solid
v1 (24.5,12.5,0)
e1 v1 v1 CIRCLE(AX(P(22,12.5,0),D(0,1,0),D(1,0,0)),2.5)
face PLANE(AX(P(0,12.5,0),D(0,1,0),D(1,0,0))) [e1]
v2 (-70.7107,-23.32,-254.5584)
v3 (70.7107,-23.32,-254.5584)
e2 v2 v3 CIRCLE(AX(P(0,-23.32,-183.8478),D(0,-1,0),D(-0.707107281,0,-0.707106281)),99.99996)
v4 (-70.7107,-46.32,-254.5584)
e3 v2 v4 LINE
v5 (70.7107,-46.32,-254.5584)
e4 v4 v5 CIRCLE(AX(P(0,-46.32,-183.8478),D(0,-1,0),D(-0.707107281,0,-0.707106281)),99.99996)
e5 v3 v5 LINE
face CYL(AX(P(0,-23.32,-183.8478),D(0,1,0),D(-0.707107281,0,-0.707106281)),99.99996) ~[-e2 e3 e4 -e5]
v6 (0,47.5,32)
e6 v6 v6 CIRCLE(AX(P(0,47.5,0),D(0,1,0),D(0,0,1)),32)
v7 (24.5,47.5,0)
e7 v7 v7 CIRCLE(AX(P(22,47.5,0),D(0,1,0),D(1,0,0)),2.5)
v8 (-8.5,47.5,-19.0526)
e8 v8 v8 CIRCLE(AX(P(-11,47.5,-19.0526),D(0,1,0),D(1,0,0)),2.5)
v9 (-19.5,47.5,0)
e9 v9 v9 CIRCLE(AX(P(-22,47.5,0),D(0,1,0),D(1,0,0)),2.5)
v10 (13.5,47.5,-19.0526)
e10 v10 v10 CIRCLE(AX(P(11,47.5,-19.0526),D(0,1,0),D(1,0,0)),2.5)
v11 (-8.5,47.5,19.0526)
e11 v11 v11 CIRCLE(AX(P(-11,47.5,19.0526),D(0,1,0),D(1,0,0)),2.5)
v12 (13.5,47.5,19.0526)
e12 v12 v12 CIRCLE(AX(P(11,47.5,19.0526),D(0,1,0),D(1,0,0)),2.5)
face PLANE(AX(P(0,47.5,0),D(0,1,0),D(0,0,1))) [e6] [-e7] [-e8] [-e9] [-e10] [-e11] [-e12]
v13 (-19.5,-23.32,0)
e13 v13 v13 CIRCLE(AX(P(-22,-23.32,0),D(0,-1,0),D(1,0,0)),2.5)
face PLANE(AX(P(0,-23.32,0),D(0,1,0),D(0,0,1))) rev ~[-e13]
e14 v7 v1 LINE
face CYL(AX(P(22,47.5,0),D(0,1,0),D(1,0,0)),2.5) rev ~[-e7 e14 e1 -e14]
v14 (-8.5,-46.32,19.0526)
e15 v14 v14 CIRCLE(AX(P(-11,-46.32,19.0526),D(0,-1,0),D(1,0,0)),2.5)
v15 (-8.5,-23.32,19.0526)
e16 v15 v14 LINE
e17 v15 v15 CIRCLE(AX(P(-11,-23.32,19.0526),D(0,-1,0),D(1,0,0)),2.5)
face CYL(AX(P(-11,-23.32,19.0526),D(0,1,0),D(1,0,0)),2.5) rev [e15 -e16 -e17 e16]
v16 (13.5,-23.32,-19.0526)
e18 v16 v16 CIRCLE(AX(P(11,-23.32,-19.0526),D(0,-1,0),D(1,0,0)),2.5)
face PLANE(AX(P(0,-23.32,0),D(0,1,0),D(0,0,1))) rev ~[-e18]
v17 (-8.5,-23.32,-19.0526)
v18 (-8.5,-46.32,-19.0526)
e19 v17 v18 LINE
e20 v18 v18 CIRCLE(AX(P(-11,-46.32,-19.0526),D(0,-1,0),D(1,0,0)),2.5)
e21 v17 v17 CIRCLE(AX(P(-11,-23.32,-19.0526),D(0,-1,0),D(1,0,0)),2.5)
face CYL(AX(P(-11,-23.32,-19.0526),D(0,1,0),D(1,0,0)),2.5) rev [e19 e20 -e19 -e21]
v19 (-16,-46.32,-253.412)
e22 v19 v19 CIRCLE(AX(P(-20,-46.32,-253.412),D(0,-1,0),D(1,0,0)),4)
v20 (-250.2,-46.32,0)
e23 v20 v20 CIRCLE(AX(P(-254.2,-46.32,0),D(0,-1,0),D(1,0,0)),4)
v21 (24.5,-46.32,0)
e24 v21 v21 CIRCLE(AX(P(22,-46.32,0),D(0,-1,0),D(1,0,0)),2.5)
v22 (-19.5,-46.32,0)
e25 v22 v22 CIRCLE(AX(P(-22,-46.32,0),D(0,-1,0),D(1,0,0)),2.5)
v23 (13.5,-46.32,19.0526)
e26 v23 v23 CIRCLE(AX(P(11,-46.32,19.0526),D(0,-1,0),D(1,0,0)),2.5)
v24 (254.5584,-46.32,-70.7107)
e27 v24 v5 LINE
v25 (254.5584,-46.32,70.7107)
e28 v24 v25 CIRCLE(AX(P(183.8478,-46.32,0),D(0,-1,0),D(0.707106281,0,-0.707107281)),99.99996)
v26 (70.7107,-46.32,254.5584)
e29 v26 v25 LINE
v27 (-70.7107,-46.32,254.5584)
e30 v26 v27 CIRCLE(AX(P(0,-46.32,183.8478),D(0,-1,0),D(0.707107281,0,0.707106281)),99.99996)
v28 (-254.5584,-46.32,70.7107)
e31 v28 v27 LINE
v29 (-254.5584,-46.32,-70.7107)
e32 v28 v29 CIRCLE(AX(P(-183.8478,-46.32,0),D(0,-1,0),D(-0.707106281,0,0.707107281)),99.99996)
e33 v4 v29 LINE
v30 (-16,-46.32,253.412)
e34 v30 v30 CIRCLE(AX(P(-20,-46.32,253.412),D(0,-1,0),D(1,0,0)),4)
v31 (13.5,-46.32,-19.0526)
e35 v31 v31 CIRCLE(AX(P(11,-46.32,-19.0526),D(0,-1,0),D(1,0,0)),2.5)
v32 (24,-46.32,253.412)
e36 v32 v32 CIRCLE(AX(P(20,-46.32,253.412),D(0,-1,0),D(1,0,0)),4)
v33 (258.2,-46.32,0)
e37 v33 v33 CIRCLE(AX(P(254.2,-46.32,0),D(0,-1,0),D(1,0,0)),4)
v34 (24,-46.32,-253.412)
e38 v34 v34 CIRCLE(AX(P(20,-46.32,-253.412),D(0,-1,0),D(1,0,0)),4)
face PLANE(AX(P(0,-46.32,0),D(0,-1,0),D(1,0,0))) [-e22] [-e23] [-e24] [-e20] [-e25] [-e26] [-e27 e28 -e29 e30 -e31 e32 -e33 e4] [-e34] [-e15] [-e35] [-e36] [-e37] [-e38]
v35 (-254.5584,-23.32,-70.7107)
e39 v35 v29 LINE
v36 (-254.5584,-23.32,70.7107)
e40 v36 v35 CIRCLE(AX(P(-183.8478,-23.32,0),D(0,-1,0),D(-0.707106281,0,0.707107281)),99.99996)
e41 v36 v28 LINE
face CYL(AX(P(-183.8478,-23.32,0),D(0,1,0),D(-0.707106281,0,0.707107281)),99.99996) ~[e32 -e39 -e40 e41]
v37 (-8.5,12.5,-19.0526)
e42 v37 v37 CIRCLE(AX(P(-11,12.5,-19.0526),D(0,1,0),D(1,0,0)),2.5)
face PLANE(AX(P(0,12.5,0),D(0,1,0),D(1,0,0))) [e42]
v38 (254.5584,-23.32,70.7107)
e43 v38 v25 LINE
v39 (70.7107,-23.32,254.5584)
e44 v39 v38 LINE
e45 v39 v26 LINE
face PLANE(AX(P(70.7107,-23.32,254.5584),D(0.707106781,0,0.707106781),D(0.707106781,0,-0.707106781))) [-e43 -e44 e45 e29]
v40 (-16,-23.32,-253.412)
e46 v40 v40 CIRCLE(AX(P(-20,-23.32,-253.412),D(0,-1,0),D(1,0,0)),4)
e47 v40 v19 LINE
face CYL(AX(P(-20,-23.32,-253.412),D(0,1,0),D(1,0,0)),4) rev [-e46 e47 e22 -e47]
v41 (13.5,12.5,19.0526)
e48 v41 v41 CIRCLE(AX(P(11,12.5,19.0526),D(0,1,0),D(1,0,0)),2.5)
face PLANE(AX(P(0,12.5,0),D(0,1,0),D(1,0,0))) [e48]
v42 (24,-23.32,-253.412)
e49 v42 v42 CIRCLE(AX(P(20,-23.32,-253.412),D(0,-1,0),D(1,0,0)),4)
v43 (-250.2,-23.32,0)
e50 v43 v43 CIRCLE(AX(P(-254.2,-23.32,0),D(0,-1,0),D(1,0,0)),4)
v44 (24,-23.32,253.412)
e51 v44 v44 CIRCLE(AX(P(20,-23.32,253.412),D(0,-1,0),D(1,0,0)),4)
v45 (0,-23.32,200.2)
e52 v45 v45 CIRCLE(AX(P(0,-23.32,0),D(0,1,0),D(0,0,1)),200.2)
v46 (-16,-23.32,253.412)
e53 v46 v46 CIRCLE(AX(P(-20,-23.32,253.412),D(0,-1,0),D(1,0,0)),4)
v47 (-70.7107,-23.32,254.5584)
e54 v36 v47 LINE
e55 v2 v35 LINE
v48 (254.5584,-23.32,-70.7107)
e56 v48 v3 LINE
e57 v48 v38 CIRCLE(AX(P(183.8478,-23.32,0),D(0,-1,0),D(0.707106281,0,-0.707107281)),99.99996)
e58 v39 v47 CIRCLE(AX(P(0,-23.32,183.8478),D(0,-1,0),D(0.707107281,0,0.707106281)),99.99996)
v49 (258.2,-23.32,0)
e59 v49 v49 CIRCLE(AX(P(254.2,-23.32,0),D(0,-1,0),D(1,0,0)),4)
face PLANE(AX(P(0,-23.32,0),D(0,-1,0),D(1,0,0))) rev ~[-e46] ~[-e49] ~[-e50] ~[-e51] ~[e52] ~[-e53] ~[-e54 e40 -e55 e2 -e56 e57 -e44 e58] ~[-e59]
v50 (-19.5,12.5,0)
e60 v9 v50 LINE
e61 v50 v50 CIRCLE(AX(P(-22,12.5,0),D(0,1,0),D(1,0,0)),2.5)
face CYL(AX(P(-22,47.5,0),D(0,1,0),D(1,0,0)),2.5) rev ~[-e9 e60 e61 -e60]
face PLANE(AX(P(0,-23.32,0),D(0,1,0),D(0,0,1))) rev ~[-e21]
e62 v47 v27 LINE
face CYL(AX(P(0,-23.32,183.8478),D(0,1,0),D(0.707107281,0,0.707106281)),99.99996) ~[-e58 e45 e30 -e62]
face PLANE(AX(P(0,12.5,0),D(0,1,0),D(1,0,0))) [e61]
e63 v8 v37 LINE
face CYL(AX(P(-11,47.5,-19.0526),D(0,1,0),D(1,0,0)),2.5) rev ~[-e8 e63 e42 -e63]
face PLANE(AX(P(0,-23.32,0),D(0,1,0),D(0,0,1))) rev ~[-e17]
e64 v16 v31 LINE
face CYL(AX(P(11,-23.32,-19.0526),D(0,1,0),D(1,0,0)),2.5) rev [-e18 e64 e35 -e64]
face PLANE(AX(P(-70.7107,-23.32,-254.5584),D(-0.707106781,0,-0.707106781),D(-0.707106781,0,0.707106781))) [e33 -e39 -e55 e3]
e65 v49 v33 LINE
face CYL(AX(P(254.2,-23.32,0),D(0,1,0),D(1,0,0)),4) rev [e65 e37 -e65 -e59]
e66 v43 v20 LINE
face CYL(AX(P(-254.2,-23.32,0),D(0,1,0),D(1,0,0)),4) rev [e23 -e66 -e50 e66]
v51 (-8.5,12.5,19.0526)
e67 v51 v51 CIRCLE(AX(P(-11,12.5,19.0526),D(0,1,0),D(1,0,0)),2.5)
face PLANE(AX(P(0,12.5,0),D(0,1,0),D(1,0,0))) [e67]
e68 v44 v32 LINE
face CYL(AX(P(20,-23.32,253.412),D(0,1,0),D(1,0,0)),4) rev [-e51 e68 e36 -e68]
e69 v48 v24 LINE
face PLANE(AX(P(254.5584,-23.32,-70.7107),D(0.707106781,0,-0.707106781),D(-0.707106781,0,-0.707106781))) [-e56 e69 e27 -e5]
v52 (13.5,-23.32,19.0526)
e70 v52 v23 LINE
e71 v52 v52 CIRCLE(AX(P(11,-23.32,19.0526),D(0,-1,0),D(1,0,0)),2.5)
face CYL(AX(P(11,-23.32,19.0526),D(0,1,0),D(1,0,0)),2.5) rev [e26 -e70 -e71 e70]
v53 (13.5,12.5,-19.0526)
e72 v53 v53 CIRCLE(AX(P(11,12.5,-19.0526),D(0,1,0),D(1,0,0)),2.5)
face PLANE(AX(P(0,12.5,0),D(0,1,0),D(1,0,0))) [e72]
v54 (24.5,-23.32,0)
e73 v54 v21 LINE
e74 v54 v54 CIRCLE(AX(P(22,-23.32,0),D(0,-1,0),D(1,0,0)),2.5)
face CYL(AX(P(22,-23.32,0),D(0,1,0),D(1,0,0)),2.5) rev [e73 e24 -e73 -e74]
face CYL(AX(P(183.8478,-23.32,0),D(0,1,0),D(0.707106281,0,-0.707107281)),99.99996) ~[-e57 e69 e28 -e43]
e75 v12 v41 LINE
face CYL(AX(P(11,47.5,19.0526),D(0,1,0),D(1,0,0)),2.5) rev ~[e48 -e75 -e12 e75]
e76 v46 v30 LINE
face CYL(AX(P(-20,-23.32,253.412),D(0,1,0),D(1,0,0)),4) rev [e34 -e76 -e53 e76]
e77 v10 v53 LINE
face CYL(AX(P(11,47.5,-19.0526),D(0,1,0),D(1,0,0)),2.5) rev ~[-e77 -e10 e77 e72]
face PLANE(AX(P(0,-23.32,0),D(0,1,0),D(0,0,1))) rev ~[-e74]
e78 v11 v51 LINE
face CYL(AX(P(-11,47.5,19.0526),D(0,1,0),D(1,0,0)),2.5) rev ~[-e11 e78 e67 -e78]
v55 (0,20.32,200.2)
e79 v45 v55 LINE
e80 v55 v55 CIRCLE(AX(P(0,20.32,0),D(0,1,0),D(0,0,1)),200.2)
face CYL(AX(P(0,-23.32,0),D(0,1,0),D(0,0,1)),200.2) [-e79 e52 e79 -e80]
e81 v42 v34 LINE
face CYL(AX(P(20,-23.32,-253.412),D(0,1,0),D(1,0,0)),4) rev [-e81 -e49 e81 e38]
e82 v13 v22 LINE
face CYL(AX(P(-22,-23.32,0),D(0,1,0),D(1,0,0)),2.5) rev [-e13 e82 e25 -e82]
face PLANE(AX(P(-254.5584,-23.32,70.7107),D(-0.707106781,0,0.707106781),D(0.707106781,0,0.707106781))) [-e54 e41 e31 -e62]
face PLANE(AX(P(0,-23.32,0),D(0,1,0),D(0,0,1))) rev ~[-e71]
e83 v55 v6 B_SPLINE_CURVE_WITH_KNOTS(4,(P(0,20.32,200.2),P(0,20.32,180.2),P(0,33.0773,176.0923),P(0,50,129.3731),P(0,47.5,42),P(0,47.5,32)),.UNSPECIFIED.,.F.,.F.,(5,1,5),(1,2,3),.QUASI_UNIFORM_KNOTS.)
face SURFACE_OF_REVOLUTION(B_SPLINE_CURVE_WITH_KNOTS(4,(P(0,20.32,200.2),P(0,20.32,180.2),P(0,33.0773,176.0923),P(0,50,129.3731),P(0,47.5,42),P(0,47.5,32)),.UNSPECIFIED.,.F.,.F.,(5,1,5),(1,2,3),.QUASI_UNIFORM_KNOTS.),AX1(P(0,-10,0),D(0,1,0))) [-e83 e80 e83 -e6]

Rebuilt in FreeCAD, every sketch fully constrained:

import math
import FreeCAD as App
import Part
import Sketcher
from FreeCAD import Vector

doc = App.newDocument("Part")
params = doc.addObject("Spreadsheet::Sheet", "Params")
for row, (alias, value) in enumerate([
    ("sketch1_width", "43.64 mm"),
    ("revolution_angle", "360 deg"),
    ("sketch2_diameter", "8 mm"),
    ("sketch2_diameter2", "5 mm"),
    ("sketch2_radius", "100 mm"),
    ("sketch2_length", "260 mm"),
    ("pad1_length", "23 mm"),
    ("sketch3_diameter", "5 mm"),
    ("pocket1_length", "35 mm"),
], start=1):
    params.set(f"A{row}", alias)
    params.set(f"B{row}", "=" + value)
    params.setAlias(f"B{row}", alias)

body = doc.addObject("PartDesign::Body", "Body")

sketch1 = body.newObject("Sketcher::SketchObject", "Sketch")
sketch1.AttachmentSupport = (doc.getObject("YZ_Plane"), [""])
sketch1.MapMode = "FlatFace"
sketch1.addGeometry(Part.LineSegment(Vector(20.32, 200.2, 0), Vector(-23.32, 200.2, 0)), False)
sketch1.addGeometry(Part.LineSegment(Vector(-23.32, 200.2, 0), Vector(-23.32, 0, 0)), False)
sketch1.addGeometry(Part.LineSegment(Vector(-23.32, 0, 0), Vector(47.5, 0, 0)), False)
sketch1.addGeometry(Part.LineSegment(Vector(47.5, 0, 0), Vector(47.5, 32, 0)), False)
sketch1.addGeometry(Part.BSplineCurve([Vector(20.32, 200.2, 0), Vector(20.32, 180.2, 0), Vector(33.0773, 176.0923, 0), Vector(50, 129.3731, 0), Vector(47.5, 42, 0), Vector(47.5, 32, 0)], [5, 1, 5], [1, 2, 3], False, 4, [1, 1, 1, 1, 1, 1], False), False)
sketch1.addConstraint(Sketcher.Constraint("Block", 4))
sketch1.addConstraint(Sketcher.Constraint("Coincident", 0, 2, 1, 1))
sketch1.addConstraint(Sketcher.Constraint("Coincident", 1, 2, 2, 1))
sketch1.addConstraint(Sketcher.Constraint("Coincident", 2, 2, 3, 1))
sketch1.addConstraint(Sketcher.Constraint("Coincident", 3, 2, 4, 2))
sketch1.addConstraint(Sketcher.Constraint("Coincident", 4, 1, 0, 1))
sketch1.addConstraint(Sketcher.Constraint("Horizontal", 0))
sketch1.addConstraint(Sketcher.Constraint("Vertical", 1))
sketch1.addConstraint(Sketcher.Constraint("Horizontal", 2))
sketch1.addConstraint(Sketcher.Constraint("Vertical", 3))
sketch1.addConstraint(Sketcher.Constraint("PointOnObject", 1, 2, -1))
sketch1.addConstraint(Sketcher.Constraint("DistanceX", 0, 2, 0, 1, 43.64))
sketch1.setExpression("Constraints[11]", "Params.sketch1_width")
revolution = body.newObject("PartDesign::Revolution", "Revolution")
revolution.Profile = sketch1
revolution.ReferenceAxis = (sketch1, ["H_Axis"])
revolution.setExpression("Angle", "Params.revolution_angle")

sketch2 = body.newObject("Sketcher::SketchObject", "Sketch001")
sketch2.AttachmentSupport = (doc.getObject("XZ_Plane"), [""])
sketch2.MapMode = "FlatFace"
sketch2.AttachmentOffset = App.Placement(Vector(0, 0, 23.32), App.Rotation())
sketch2.addGeometry(Part.LineSegment(Vector(254.6, 70.7, 0), Vector(70.7, 254.6, 0)), False)
sketch2.addGeometry(Part.ArcOfCircle(Part.Circle(Vector(0, 183.8, 0), Vector(0, 0, 1), 100), math.radians(45), math.radians(135)), False)
sketch2.addGeometry(Part.LineSegment(Vector(-70.7, 254.6, 0), Vector(-254.6, 70.7, 0)), False)
sketch2.addGeometry(Part.ArcOfCircle(Part.Circle(Vector(-183.8, 0, 0), Vector(0, 0, 1), 100), math.radians(135), math.radians(225)), False)
sketch2.addGeometry(Part.LineSegment(Vector(-254.6, -70.7, 0), Vector(-70.7, -254.6, 0)), False)
sketch2.addGeometry(Part.ArcOfCircle(Part.Circle(Vector(0, -183.8, 0), Vector(0, 0, 1), 100), math.radians(-135), math.radians(-45)), False)
sketch2.addGeometry(Part.LineSegment(Vector(70.7, -254.6, 0), Vector(254.6, -70.7, 0)), False)
sketch2.addGeometry(Part.ArcOfCircle(Part.Circle(Vector(183.8, 0, 0), Vector(0, 0, 1), 100), math.radians(-45), math.radians(45)), False)
sketch2.addGeometry(Part.Circle(Vector(-20, -253.4, 0), Vector(0, 0, 1), 4), False)
sketch2.addGeometry(Part.Circle(Vector(-254.2, 0, 0), Vector(0, 0, 1), 4), False)
sketch2.addGeometry(Part.Circle(Vector(-11, -19.1, 0), Vector(0, 0, 1), 2.5), False)
sketch2.addGeometry(Part.Circle(Vector(-22, 0, 0), Vector(0, 0, 1), 2.5), False)
sketch2.addGeometry(Part.Circle(Vector(20, -253.4, 0), Vector(0, 0, 1), 4), False)
sketch2.addGeometry(Part.Circle(Vector(11, -19.1, 0), Vector(0, 0, 1), 2.5), False)
sketch2.addGeometry(Part.Circle(Vector(22, 0, 0), Vector(0, 0, 1), 2.5), False)
sketch2.addGeometry(Part.Circle(Vector(254.2, 0, 0), Vector(0, 0, 1), 4), False)
sketch2.addGeometry(Part.Circle(Vector(-11, 19.1, 0), Vector(0, 0, 1), 2.5), False)
sketch2.addGeometry(Part.Circle(Vector(-20, 253.4, 0), Vector(0, 0, 1), 4), False)
sketch2.addGeometry(Part.Circle(Vector(11, 19.1, 0), Vector(0, 0, 1), 2.5), False)
sketch2.addGeometry(Part.Circle(Vector(20, 253.4, 0), Vector(0, 0, 1), 4), False)
sketch2.addConstraint(Sketcher.Constraint("Tangent", 0, 2, 1, 1))
sketch2.addConstraint(Sketcher.Constraint("Tangent", 1, 2, 2, 1))
sketch2.addConstraint(Sketcher.Constraint("Tangent", 2, 2, 3, 1))
sketch2.addConstraint(Sketcher.Constraint("Tangent", 3, 2, 4, 1))
sketch2.addConstraint(Sketcher.Constraint("Tangent", 4, 2, 5, 1))
sketch2.addConstraint(Sketcher.Constraint("Tangent", 5, 2, 6, 1))
sketch2.addConstraint(Sketcher.Constraint("Tangent", 6, 2, 7, 1))
sketch2.addConstraint(Sketcher.Constraint("Tangent", 7, 2, 0, 1))
sketch2.addConstraint(Sketcher.Constraint("Equal", 1, 3))
sketch2.addConstraint(Sketcher.Constraint("Equal", 3, 5))
sketch2.addConstraint(Sketcher.Constraint("Equal", 5, 7))
sketch2.addConstraint(Sketcher.Constraint("Equal", 8, 9))
sketch2.addConstraint(Sketcher.Constraint("Equal", 10, 11))
sketch2.addConstraint(Sketcher.Constraint("Equal", 9, 12))
sketch2.addConstraint(Sketcher.Constraint("Equal", 11, 13))
sketch2.addConstraint(Sketcher.Constraint("Equal", 13, 14))
sketch2.addConstraint(Sketcher.Constraint("Equal", 12, 15))
sketch2.addConstraint(Sketcher.Constraint("Equal", 14, 16))
sketch2.addConstraint(Sketcher.Constraint("Equal", 15, 17))
sketch2.addConstraint(Sketcher.Constraint("Equal", 16, 18))
sketch2.addConstraint(Sketcher.Constraint("Equal", 17, 19))
sketch2.addConstraint(Sketcher.Constraint("Symmetric", 1, 3, 5, 3, -1, 1))
sketch2.addConstraint(Sketcher.Constraint("Symmetric", 3, 3, 7, 3, -1, 1))
sketch2.addConstraint(Sketcher.Constraint("Symmetric", 11, 3, 14, 3, -1, 1))
sketch2.addConstraint(Sketcher.Constraint("Symmetric", 9, 3, 15, 3, -1, 1))
sketch2.addConstraint(Sketcher.Constraint("Symmetric", 13, 3, 16, 3, -1, 1))
sketch2.addConstraint(Sketcher.Constraint("Symmetric", 12, 3, 17, 3, -1, 1))
sketch2.addConstraint(Sketcher.Constraint("Symmetric", 10, 3, 18, 3, -1, 1))
sketch2.addConstraint(Sketcher.Constraint("Symmetric", 8, 3, 19, 3, -1, 1))
sketch2.addConstraint(Sketcher.Constraint("Symmetric", 8, 3, 12, 3, -2))
sketch2.addConstraint(Sketcher.Constraint("Symmetric", 10, 3, 13, 3, -2))
sketch2.addConstraint(Sketcher.Constraint("Symmetric", 3, 2, 6, 2, -2))
sketch2.addConstraint(Sketcher.Constraint("PointOnObject", 9, 3, -1))
sketch2.addConstraint(Sketcher.Constraint("PointOnObject", 11, 3, -1))
sketch2.addConstraint(Sketcher.Constraint("Perpendicular", 0, 2))
sketch2.addConstraint(Sketcher.Constraint("Diameter", 8, 8.0))
sketch2.addConstraint(Sketcher.Constraint("Diameter", 10, 5.0))
sketch2.addConstraint(Sketcher.Constraint("Radius", 1, 100.0))
sketch2.addConstraint(Sketcher.Constraint("Distance", 0, 260.0))
sketch2.addConstraint(Sketcher.Constraint("DistanceX", 8, 3, -1, 1, 20.0))
sketch2.addConstraint(Sketcher.Constraint("DistanceX", 10, 3, -1, 1, 11.0))
sketch2.addConstraint(Sketcher.Constraint("DistanceX", 11, 3, -1, 1, 22.0))
sketch2.addConstraint(Sketcher.Constraint("DistanceX", 9, 3, -1, 1, 254.2))
sketch2.addConstraint(Sketcher.Constraint("DistanceY", 8, 3, -1, 1, 253.412))
sketch2.addConstraint(Sketcher.Constraint("DistanceY", 16, 3, 2, 2, 51.658))
sketch2.setExpression("Constraints[35]", "Params.sketch2_diameter")
sketch2.setExpression("Constraints[36]", "Params.sketch2_diameter2")
sketch2.setExpression("Constraints[37]", "Params.sketch2_radius")
sketch2.setExpression("Constraints[38]", "Params.sketch2_length")
pad1 = body.newObject("PartDesign::Pad", "Pad")
pad1.Profile = sketch2
pad1.setExpression("Length", "Params.pad1_length")

sketch3 = body.newObject("Sketcher::SketchObject", "Sketch002")
sketch3.AttachmentSupport = (doc.getObject("XZ_Plane"), [""])
sketch3.MapMode = "FlatFace"
sketch3.AttachmentOffset = App.Placement(Vector(0, 0, -47.5), App.Rotation())
sketch3.addGeometry(Part.Circle(Vector(-11, -19.1, 0), Vector(0, 0, 1), 2.5), False)
sketch3.addGeometry(Part.Circle(Vector(11, -19.1, 0), Vector(0, 0, 1), 2.5), False)
sketch3.addGeometry(Part.Circle(Vector(22, 0, 0), Vector(0, 0, 1), 2.5), False)
sketch3.addGeometry(Part.Circle(Vector(11, 19.1, 0), Vector(0, 0, 1), 2.5), False)
sketch3.addGeometry(Part.Circle(Vector(-11, 19.1, 0), Vector(0, 0, 1), 2.5), False)
sketch3.addGeometry(Part.Circle(Vector(-22, 0, 0), Vector(0, 0, 1), 2.5), False)
sketch3.addConstraint(Sketcher.Constraint("Equal", 0, 1))
sketch3.addConstraint(Sketcher.Constraint("Equal", 1, 2))
sketch3.addConstraint(Sketcher.Constraint("Equal", 2, 3))
sketch3.addConstraint(Sketcher.Constraint("Equal", 3, 4))
sketch3.addConstraint(Sketcher.Constraint("Equal", 4, 5))
sketch3.addConstraint(Sketcher.Constraint("Symmetric", 0, 3, 3, 3, -1, 1))
sketch3.addConstraint(Sketcher.Constraint("Symmetric", 1, 3, 4, 3, -1, 1))
sketch3.addConstraint(Sketcher.Constraint("Symmetric", 2, 3, 5, 3, -1, 1))
sketch3.addConstraint(Sketcher.Constraint("Symmetric", 0, 3, 1, 3, -2))
sketch3.addConstraint(Sketcher.Constraint("PointOnObject", 2, 3, -1))
sketch3.addConstraint(Sketcher.Constraint("Diameter", 0, 5.0))
sketch3.addConstraint(Sketcher.Constraint("DistanceX", 0, 3, -1, 1, 11.0))
sketch3.addConstraint(Sketcher.Constraint("DistanceX", -1, 1, 2, 3, 22.0))
sketch3.addConstraint(Sketcher.Constraint("DistanceY", 0, 3, -1, 1, 19.0526))
sketch3.setExpression("Constraints[10]", "Params.sketch3_diameter")
pocket1 = body.newObject("PartDesign::Pocket", "Pocket")
pocket1.Profile = sketch3
pocket1.setExpression("Length", "Params.pocket1_length")
pocket1.Reversed = True

doc.recompute()
